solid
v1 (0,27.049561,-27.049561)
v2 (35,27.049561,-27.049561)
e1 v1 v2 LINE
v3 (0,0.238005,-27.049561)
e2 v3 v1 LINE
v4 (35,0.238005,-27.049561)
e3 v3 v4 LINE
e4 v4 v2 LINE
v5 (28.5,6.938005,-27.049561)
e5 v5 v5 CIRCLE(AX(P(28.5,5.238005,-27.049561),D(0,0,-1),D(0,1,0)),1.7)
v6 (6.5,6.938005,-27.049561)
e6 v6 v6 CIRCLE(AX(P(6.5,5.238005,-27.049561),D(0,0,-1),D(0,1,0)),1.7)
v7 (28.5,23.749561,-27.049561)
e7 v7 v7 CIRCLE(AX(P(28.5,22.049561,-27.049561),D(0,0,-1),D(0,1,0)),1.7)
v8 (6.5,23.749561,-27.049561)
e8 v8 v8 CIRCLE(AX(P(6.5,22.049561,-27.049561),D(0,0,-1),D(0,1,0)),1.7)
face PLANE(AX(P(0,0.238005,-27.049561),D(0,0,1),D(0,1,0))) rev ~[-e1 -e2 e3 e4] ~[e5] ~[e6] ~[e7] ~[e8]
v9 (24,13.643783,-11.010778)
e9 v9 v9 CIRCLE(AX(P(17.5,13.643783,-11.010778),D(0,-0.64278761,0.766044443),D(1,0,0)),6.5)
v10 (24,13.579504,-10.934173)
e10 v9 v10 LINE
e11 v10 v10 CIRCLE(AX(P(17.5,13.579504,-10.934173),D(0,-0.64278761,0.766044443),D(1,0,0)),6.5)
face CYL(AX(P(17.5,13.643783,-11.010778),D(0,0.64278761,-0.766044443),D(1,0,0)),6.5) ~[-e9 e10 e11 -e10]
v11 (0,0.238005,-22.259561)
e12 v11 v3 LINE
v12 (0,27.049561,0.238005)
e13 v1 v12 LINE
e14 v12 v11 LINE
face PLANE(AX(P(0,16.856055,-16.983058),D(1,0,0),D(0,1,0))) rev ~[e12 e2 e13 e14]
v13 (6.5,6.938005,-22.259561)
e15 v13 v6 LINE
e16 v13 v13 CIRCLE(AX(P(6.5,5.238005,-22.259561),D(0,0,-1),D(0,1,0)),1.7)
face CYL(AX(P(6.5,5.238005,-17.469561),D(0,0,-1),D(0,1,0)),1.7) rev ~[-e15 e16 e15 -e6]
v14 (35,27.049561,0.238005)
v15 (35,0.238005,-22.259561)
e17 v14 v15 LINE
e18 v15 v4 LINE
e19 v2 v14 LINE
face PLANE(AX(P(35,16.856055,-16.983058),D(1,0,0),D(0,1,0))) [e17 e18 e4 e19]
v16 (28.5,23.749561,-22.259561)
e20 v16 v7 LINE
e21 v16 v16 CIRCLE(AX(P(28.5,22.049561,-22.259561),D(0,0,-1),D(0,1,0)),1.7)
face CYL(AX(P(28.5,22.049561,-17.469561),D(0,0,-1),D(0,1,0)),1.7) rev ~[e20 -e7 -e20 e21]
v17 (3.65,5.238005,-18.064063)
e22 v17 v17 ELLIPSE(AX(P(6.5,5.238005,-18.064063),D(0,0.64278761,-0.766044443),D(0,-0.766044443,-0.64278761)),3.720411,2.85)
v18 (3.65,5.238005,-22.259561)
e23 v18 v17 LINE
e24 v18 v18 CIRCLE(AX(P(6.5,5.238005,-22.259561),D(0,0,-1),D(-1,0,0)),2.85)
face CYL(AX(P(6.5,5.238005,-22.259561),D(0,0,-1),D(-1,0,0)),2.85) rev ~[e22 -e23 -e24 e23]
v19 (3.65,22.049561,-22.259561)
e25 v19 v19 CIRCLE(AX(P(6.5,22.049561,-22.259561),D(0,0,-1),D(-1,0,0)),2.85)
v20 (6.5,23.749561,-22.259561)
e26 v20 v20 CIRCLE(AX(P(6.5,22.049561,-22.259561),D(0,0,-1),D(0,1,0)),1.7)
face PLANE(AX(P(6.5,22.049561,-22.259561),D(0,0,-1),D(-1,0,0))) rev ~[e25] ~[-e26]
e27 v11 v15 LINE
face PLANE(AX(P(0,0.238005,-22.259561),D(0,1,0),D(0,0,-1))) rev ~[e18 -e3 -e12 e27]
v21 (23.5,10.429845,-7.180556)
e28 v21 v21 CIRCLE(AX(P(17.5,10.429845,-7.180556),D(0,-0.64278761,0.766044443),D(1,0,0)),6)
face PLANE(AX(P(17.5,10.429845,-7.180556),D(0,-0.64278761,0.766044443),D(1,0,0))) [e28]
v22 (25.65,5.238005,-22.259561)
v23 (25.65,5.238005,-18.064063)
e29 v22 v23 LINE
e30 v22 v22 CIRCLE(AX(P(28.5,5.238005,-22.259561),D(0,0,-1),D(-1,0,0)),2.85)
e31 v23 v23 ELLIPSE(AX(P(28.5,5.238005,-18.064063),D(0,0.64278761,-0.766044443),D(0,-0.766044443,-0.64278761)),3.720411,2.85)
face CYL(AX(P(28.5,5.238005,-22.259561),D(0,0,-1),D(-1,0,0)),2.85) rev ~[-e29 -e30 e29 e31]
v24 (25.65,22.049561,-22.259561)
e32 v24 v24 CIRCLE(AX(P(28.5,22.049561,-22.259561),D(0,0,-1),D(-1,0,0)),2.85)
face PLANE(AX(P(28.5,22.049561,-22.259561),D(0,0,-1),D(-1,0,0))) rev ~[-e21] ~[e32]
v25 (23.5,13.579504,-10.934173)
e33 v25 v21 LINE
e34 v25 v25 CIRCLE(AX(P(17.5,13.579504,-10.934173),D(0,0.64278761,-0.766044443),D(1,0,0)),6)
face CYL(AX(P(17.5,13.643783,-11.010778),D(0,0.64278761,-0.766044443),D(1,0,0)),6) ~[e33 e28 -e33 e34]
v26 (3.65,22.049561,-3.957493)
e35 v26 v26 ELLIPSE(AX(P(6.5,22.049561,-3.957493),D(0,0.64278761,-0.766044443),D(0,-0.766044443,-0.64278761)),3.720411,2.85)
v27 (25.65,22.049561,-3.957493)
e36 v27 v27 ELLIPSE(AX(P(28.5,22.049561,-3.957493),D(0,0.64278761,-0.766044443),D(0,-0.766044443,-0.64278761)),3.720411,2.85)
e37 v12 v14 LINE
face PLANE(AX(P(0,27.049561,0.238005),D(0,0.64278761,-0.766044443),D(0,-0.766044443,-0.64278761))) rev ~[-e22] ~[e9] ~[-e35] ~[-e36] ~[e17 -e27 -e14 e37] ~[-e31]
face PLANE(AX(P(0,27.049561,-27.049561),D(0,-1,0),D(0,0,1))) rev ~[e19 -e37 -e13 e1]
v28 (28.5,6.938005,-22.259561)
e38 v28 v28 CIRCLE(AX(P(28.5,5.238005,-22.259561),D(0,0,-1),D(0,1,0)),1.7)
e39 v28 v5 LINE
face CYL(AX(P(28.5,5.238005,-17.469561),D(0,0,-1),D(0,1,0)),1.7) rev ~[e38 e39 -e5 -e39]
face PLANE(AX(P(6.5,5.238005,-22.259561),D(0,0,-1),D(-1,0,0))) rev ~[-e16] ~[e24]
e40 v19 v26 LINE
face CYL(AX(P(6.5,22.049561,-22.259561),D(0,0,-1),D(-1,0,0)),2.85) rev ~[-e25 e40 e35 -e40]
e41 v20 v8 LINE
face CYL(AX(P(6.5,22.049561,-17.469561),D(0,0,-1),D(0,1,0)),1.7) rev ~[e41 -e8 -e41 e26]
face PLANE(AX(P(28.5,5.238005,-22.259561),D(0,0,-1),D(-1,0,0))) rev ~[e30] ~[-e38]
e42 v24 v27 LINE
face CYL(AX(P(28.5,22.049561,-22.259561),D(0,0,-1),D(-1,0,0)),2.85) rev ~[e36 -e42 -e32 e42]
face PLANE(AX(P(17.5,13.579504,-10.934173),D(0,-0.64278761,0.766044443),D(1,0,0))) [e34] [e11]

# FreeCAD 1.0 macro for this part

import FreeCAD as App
import Part
import Sketcher
from FreeCAD import Vector
Q = App.Units.Quantity


def add_polygon(sketch, points):
    """Adds a closed chain of lines whose ends are joined by coincident constraints."""
    first, n = sketch.GeometryCount, len(points)
    for a, b in zip(points, points[1:] + points[:1]):
        sketch.addGeometry(Part.LineSegment(App.Vector(*a, 0), App.Vector(*b, 0)), False)
    for i in range(n):
        sketch.addConstraint(Sketcher.Constraint("Coincident", first + i, 2, first + (i + 1) % n, 1))

doc = App.newDocument("Part")
body = doc.addObject("PartDesign::Body", "Body")

sketch1 = body.newObject("Sketcher::SketchObject", "Sketch")
sketch1.AttachmentSupport = (doc.getObject("YZ_Plane"), [""])
sketch1.MapMode = "FlatFace"
add_polygon(sketch1, [(0, 0), (0, -26.8), (27.3, -26.8), (4.8, 0)])
sketch1.addConstraint([
    Sketcher.Constraint("Vertical", 0),
    Sketcher.Constraint("Horizontal", 1),
    Sketcher.Constraint("Horizontal", 3),
    Sketcher.Constraint("Coincident", 3, 2, -1, 1),
    Sketcher.Constraint("Angle", 2, Q("130 deg")),
    Sketcher.Constraint("Distance", 2, 35.0),
    Sketcher.Constraint("DistanceX", 3, 2, 3, 1, 4.79),
])
pad1 = body.newObject("PartDesign::Pad", "Pad")
pad1.Profile = sketch1
pad1.Length = 35

sketch2 = body.newObject("Sketcher::SketchObject", "Sketch001")
sketch2.Placement = App.Placement(Vector(0, 2.810887, 2.358615), App.Rotation(Vector(1, 0, 0), Vector(0, 0.64278761, -0.766044443), Vector(0, 0.766044443, 0.64278761), "ZXY"))
sketch2.addGeometry(Part.Circle(Vector(18, 21, 0), Vector(0, 0, 1), 6), False)
sketch2.addConstraint([
    Sketcher.Constraint("Diameter", 0, 12.0),
    Sketcher.Constraint("DistanceX", -1, 1, 0, 3, 17.5),
    Sketcher.Constraint("DistanceY", -1, 1, 0, 3, 20.578953),
])
pad2 = body.newObject("PartDesign::Pad", "Pad001")
pad2.Profile = sketch2
pad2.Length = 5

sketch3 = body.newObject("Sketcher::SketchObject", "Sketch002")
sketch3.Placement = App.Placement(Vector(0, 2.810887, 2.358615), App.Rotation(Vector(1, 0, 0), Vector(0, 0.64278761, -0.766044443), Vector(0, 0.766044443, 0.64278761), "ZXY"))
sketch3.addGeometry(Part.Circle(Vector(18, 21, 0), Vector(0, 0, 1), 6), False)
sketch3.addConstraint([
    Sketcher.Constraint("Diameter", 0, 13.0),
    Sketcher.Constraint("DistanceX", -1, 1, 0, 3, 17.5),
    Sketcher.Constraint("DistanceY", -1, 1, 0, 3, 20.578953),
])
pad3 = body.newObject("PartDesign::Pad", "Pad002")
pad3.Profile = sketch3
pad3.Length = 0.1

sketch4 = body.newObject("Sketcher::SketchObject", "Sketch003")
sketch4.AttachmentSupport = (doc.getObject("XZ_Plane"), [""])
sketch4.MapMode = "FlatFace"
sketch4.AttachmentOffset = App.Placement(Vector(0, 0, -4.79), App.Rotation())
sketch4.addGeometry([
    Part.Circle(Vector(28.5, -21.8, 0), Vector(0, 0, 1), 2.9),
    Part.Circle(Vector(6.5, -21.8, 0), Vector(0, 0, 1), 2.9),
    Part.Circle(Vector(6.5, -5, 0), Vector(0, 0, 1), 2.9),
    Part.Circle(Vector(28.5, -5, 0), Vector(0, 0, 1), 2.9),
], False)
sketch4.addConstraint([
    Sketcher.Constraint("Equal", 0, 1),
    Sketcher.Constraint("Equal", 1, 2),
    Sketcher.Constraint("Equal", 2, 3),
    Sketcher.Constraint("Horizontal", 0, 3, 1, 3),
    Sketcher.Constraint("Horizontal", 2, 3, 3, 3),
    Sketcher.Constraint("Vertical", 1, 3, 2, 3),
    Sketcher.Constraint("Vertical", 0, 3, 3, 3),
    Sketcher.Constraint("Diameter", 0, 5.7),
    Sketcher.Constraint("DistanceY", 2, 3, -1, 1, 5.0),
    Sketcher.Constraint("DistanceX", 1, 3, 0, 3, 22.0),
    Sketcher.Constraint("DistanceX", -1, 1, 0, 3, 28.5),
    Sketcher.Constraint("DistanceY", 0, 3, -1, 1, 21.811556),
])
pocket1 = body.newObject("PartDesign::Pocket", "Pocket")
pocket1.Profile = sketch4
pocket1.Type = "ThroughAll"

sketch5 = body.newObject("Sketcher::SketchObject", "Sketch004")
sketch5.AttachmentSupport = (doc.getObject("XZ_Plane"), [""])
sketch5.MapMode = "FlatFace"
sketch5.AttachmentOffset = App.Placement(Vector(0, 0, -4.79), App.Rotation())
sketch5.addGeometry([
    Part.Circle(Vector(6.5, -21.8, 0), Vector(0, 0, 1), 1.7),
    Part.Circle(Vector(6.5, -5, 0), Vector(0, 0, 1), 1.7),
    Part.Circle(Vector(28.5, -5, 0), Vector(0, 0, 1), 1.7),
    Part.Circle(Vector(28.5, -21.8, 0), Vector(0, 0, 1), 1.7),
], False)
sketch5.addConstraint([
    Sketcher.Constraint("Equal", 0, 1),
    Sketcher.Constraint("Equal", 1, 2),
    Sketcher.Constraint("Equal", 2, 3),
    Sketcher.Constraint("Horizontal", 1, 3, 2, 3),
    Sketcher.Constraint("Horizontal", 0, 3, 3, 3),
    Sketcher.Constraint("Vertical", 0, 3, 1, 3),
    Sketcher.Constraint("Vertical", 2, 3, 3, 3),
    Sketcher.Constraint("Diameter", 0, 3.4),
    Sketcher.Constraint("DistanceY", 1, 3, -1, 1, 5.0),
    Sketcher.Constraint("DistanceX", 1, 3, 2, 3, 22.0),
    Sketcher.Constraint("DistanceX", -1, 1, 0, 3, 6.5),
    Sketcher.Constraint("DistanceY", 0, 3, -1, 1, 21.811556),
])
doc.recompute()
hole = body.newObject("PartDesign::Hole", "Hole")
hole.Profile = sketch5
hole.ThreadType = "None"
hole.Diameter = 3.4
hole.DepthType = "Dimension"
hole.Depth = 4.79
hole.DrillPoint = "Flat"
hole.Reversed = True
body2 = doc.addObject("PartDesign::Body", "Body001")
doc.recompute()

body.Placement = App.Placement(Vector(0, 0.238005, -27.049561), App.Rotation(Vector(1, 0, 0), 90))
boolean = body2.newObject("PartDesign::Boolean", "Boolean")
boolean.Type = "Fuse"
boolean.addObjects([body])

doc.recompute()
